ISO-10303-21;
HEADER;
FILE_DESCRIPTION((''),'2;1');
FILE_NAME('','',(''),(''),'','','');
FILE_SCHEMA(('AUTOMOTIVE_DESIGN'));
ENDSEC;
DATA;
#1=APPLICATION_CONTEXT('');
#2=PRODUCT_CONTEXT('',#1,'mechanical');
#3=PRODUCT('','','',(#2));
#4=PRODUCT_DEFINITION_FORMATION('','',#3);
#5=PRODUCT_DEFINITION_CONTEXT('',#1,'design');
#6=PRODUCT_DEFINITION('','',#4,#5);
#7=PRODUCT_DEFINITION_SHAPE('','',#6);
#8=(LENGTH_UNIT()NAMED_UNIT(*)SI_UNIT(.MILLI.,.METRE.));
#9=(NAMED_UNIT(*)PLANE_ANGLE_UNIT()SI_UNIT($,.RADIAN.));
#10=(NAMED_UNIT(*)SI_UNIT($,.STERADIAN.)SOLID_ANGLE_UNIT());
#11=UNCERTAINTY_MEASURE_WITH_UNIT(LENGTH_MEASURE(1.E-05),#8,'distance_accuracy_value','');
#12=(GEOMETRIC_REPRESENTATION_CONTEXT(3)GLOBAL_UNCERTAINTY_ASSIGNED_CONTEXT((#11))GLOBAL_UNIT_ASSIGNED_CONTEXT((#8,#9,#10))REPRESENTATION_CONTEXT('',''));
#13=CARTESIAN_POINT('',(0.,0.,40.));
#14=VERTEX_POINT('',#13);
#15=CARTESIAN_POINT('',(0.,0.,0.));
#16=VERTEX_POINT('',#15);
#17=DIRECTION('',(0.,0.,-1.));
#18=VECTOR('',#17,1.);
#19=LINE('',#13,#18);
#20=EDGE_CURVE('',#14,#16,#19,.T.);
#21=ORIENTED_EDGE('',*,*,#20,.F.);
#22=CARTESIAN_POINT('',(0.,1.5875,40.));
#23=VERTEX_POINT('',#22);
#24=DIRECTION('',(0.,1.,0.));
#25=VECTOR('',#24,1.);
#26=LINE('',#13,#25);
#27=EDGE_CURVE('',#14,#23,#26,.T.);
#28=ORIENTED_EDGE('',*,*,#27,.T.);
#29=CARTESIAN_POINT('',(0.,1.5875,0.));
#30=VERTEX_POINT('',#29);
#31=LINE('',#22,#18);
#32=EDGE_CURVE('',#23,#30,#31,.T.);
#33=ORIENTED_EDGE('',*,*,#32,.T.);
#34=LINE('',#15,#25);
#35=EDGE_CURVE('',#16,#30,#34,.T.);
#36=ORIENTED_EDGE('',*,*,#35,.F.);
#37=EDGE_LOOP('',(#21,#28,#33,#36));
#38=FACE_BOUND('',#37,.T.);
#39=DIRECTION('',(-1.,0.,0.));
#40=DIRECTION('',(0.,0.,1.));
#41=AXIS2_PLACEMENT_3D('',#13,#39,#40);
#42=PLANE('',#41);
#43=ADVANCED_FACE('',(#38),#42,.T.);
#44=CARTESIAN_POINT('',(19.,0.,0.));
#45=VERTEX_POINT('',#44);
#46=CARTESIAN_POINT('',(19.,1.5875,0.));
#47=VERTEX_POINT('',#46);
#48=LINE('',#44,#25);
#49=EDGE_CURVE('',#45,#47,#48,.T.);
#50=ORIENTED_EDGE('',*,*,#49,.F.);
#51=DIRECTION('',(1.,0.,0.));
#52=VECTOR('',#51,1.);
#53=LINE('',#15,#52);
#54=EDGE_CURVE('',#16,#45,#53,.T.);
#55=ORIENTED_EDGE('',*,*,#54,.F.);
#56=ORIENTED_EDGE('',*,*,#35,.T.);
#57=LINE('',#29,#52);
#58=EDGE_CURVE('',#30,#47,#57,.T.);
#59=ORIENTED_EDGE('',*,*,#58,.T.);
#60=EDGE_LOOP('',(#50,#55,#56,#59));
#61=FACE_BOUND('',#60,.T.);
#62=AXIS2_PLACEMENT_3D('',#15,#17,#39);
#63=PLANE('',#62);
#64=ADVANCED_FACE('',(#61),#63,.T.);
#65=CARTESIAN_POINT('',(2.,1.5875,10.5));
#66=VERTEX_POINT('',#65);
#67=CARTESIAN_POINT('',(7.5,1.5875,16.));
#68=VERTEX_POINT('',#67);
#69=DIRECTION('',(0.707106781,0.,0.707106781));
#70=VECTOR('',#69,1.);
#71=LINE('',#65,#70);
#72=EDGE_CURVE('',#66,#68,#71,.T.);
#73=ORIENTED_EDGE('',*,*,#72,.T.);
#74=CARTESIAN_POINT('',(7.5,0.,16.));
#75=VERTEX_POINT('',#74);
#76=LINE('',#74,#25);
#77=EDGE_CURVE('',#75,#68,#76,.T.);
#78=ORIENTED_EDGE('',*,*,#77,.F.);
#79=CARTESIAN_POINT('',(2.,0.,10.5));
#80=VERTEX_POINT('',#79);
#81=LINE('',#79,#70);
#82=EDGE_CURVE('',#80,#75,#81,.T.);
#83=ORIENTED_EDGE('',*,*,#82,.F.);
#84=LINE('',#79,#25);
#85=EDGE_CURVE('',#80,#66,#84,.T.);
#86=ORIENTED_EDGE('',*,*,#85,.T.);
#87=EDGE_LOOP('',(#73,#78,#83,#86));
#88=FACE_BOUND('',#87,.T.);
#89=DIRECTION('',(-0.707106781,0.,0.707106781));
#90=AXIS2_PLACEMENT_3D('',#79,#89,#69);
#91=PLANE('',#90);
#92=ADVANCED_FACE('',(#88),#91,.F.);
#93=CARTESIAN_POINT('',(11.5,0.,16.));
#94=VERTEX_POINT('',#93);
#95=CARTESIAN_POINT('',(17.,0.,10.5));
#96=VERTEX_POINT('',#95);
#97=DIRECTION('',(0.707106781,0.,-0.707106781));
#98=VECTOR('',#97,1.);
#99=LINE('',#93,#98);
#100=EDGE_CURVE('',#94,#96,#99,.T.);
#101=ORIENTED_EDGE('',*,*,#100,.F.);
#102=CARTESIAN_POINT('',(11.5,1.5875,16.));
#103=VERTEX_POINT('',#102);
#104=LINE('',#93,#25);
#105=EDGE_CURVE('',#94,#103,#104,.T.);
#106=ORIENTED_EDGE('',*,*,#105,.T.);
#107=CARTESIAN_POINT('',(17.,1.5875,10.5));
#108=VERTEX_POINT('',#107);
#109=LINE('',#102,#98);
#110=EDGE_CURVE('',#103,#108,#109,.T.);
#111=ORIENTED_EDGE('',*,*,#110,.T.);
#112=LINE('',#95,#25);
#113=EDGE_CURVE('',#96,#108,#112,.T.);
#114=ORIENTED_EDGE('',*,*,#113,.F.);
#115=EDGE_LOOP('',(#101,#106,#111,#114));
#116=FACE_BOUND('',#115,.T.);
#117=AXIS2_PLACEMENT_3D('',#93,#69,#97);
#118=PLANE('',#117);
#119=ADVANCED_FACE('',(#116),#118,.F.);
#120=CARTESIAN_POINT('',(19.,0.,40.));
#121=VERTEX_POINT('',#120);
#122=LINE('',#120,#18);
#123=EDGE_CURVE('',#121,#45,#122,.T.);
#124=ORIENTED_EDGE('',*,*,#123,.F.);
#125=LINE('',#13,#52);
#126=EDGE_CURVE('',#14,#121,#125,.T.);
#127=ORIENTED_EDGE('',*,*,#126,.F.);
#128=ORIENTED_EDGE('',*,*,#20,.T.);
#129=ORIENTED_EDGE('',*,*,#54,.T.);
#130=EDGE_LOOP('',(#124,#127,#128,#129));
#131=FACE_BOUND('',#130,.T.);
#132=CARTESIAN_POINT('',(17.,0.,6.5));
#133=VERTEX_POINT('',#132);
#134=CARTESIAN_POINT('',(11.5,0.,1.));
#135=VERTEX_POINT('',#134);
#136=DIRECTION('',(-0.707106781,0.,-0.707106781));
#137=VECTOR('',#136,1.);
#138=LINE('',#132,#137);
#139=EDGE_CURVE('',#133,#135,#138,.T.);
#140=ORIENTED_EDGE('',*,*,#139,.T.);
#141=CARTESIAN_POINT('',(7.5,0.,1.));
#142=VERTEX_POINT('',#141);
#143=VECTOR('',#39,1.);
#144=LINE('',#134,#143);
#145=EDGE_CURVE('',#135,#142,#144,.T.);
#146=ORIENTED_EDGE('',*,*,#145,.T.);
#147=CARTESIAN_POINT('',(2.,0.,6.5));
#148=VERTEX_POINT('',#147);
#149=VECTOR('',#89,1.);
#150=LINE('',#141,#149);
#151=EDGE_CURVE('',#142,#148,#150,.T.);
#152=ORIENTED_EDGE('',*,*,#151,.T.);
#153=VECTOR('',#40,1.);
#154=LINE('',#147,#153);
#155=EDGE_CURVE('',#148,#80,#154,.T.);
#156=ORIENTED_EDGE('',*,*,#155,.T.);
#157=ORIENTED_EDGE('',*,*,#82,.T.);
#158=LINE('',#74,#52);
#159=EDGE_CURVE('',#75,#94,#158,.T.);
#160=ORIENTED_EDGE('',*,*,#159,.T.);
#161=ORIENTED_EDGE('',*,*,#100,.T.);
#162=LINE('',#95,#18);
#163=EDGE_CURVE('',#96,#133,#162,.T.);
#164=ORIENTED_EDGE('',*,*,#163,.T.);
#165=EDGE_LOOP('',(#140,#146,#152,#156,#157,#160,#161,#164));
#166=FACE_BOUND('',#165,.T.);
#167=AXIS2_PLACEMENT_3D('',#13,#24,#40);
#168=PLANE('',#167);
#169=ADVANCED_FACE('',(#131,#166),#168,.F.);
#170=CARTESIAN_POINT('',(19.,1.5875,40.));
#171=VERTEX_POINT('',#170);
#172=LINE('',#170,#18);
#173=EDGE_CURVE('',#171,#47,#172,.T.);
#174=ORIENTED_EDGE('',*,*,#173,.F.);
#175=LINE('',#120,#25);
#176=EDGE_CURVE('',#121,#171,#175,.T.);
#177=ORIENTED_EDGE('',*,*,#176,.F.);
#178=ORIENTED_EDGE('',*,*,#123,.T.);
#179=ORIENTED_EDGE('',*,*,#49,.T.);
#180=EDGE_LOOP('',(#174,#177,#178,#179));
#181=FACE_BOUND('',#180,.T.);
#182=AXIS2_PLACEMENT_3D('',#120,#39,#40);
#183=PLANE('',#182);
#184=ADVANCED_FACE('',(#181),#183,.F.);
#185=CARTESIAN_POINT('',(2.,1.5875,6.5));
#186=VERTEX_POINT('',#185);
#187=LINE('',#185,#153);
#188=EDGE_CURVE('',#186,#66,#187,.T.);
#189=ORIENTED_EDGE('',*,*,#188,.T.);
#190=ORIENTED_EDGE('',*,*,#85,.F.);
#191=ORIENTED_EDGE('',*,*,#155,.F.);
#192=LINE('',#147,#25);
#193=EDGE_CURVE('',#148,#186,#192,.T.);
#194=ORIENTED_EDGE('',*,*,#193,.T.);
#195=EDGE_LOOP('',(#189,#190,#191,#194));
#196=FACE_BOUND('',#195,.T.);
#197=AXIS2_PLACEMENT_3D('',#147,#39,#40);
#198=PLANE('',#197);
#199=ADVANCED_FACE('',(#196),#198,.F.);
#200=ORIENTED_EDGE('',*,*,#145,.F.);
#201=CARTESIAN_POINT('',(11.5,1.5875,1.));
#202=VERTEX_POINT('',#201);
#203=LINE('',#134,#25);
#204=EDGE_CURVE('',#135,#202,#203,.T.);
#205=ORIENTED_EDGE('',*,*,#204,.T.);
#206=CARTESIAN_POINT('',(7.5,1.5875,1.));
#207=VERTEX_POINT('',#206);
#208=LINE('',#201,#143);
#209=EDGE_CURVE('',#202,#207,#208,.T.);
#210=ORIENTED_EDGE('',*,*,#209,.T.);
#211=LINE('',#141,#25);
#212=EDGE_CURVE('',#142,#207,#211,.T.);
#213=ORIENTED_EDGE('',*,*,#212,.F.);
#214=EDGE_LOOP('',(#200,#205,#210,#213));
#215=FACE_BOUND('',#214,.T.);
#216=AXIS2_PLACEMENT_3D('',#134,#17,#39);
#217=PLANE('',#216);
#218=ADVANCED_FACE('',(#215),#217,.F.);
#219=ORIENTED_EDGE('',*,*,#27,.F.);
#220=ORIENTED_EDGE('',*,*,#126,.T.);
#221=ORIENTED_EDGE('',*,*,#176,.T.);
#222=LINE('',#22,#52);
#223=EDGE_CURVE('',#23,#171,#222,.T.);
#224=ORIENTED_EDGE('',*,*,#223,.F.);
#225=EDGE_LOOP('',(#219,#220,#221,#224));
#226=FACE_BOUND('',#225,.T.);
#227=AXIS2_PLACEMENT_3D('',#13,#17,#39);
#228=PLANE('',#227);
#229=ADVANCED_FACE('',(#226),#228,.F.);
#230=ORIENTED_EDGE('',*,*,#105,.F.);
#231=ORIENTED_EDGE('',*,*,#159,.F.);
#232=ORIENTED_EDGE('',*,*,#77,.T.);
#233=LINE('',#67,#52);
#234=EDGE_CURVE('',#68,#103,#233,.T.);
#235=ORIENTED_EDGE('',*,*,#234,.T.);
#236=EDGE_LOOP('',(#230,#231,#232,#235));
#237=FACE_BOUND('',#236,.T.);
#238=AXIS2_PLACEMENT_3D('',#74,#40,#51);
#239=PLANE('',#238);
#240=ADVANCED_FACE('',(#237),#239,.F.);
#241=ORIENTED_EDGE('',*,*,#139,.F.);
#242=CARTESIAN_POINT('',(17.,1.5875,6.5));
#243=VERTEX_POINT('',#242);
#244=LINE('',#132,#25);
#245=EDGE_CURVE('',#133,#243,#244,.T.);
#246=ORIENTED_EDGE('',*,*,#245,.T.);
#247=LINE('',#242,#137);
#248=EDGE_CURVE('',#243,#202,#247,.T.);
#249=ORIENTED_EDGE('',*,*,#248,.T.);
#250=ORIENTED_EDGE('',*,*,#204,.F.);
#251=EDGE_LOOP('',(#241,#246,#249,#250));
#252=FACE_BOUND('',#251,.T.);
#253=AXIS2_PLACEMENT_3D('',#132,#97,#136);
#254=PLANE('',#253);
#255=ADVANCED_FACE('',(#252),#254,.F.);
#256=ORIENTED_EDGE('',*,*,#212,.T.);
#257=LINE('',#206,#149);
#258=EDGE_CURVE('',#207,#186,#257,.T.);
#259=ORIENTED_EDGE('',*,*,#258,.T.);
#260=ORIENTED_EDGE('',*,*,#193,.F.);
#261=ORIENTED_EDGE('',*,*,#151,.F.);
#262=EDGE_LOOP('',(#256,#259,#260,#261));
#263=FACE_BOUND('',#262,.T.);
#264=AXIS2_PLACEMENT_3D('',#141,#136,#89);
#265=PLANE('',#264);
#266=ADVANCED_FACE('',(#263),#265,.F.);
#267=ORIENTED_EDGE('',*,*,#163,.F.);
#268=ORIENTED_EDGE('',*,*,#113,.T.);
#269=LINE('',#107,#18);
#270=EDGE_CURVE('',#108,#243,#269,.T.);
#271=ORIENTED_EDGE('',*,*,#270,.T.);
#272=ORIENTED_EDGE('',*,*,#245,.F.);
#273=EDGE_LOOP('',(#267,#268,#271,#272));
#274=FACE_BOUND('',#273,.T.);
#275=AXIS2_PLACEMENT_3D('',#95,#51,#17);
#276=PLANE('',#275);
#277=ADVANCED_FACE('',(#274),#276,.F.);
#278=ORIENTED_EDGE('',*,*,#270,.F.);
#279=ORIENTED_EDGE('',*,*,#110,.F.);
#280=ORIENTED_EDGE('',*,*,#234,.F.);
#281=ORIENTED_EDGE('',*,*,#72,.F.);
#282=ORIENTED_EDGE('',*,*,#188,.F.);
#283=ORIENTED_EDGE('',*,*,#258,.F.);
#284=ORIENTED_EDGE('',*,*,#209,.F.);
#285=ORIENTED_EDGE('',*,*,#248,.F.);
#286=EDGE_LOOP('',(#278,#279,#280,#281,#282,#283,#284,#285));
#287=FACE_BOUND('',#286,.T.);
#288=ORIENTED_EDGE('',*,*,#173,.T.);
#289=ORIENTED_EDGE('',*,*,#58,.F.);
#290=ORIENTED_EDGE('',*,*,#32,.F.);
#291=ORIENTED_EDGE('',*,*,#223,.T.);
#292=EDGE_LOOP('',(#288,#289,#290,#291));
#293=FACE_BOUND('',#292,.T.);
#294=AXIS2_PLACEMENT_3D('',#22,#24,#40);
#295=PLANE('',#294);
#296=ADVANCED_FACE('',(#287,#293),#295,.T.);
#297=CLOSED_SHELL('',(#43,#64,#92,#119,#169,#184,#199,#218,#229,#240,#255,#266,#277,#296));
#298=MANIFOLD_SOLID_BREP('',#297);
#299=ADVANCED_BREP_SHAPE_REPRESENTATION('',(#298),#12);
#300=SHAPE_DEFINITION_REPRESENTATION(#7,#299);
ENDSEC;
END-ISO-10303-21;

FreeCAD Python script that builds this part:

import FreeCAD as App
import Part
import Sketcher
Q = App.Units.Quantity

doc = App.newDocument("Part")
body = doc.addObject("PartDesign::Body", "Body")

sketch1 = doc.addObject("Sketcher::SketchObject", "Sketch")
body.addObject(sketch1)
sketch1.AttachmentSupport = (doc.XY_Plane, [""])
sketch1.MapMode = "FlatFace"
sketch1.addGeometry(Part.LineSegment(App.Vector(0, 1.6, 0), App.Vector(0, 0, 0)), False)
sketch1.addGeometry(Part.LineSegment(App.Vector(0, 0, 0), App.Vector(19, 0, 0)), False)
sketch1.addGeometry(Part.LineSegment(App.Vector(19, 0, 0), App.Vector(19, 1.6, 0)), False)
sketch1.addGeometry(Part.LineSegment(App.Vector(19, 1.6, 0), App.Vector(0, 1.6, 0)), False)
sketch1.addConstraint(Sketcher.Constraint("Coincident", 0, 2, 1, 1))
sketch1.addConstraint(Sketcher.Constraint("Coincident", 1, 2, 2, 1))
sketch1.addConstraint(Sketcher.Constraint("Coincident", 2, 2, 3, 1))
sketch1.addConstraint(Sketcher.Constraint("Coincident", 3, 2, 0, 1))
sketch1.addConstraint(Sketcher.Constraint("Vertical", 0))
sketch1.addConstraint(Sketcher.Constraint("Horizontal", 1))
sketch1.addConstraint(Sketcher.Constraint("Vertical", 2))
sketch1.addConstraint(Sketcher.Constraint("Horizontal", 3))
sketch1.addConstraint(Sketcher.Constraint("Coincident", 0, 2, -1, 1))
sketch1.addConstraint(Sketcher.Constraint("DistanceX", 1, 1, 1, 2, Q("19 mm")))
sketch1.addConstraint(Sketcher.Constraint("DistanceY", 0, 2, 0, 1, Q("1.5875 mm")))
pad1 = doc.addObject("PartDesign::Pad", "Pad")
body.addObject(pad1)
pad1.Profile = sketch1
pad1.Length = 40

sketch2 = doc.addObject("Sketcher::SketchObject", "Sketch001")
body.addObject(sketch2)
sketch2.AttachmentSupport = (doc.XZ_Plane, [""])
sketch2.MapMode = "FlatFace"
sketch2.AttachmentOffset = App.Placement(App.Vector(0, 0, -1.5875), App.Rotation())
sketch2.addGeometry(Part.LineSegment(App.Vector(2, 10.5, 0), App.Vector(7.5, 16, 0)), False)
sketch2.addGeometry(Part.LineSegment(App.Vector(7.5, 16, 0), App.Vector(11.5, 16, 0)), False)
sketch2.addGeometry(Part.LineSegment(App.Vector(11.5, 16, 0), App.Vector(17, 10.5, 0)), False)
sketch2.addGeometry(Part.LineSegment(App.Vector(17, 10.5, 0), App.Vector(17, 6.5, 0)), False)
sketch2.addGeometry(Part.LineSegment(App.Vector(17, 6.5, 0), App.Vector(11.5, 1, 0)), False)
sketch2.addGeometry(Part.LineSegment(App.Vector(11.5, 1, 0), App.Vector(7.5, 1, 0)), False)
sketch2.addGeometry(Part.LineSegment(App.Vector(7.5, 1, 0), App.Vector(2, 6.5, 0)), False)
sketch2.addGeometry(Part.LineSegment(App.Vector(2, 6.5, 0), App.Vector(2, 10.5, 0)), False)
sketch2.addConstraint(Sketcher.Constraint("Coincident", 0, 2, 1, 1))
sketch2.addConstraint(Sketcher.Constraint("Coincident", 1, 2, 2, 1))
sketch2.addConstraint(Sketcher.Constraint("Coincident", 2, 2, 3, 1))
sketch2.addConstraint(Sketcher.Constraint("Coincident", 3, 2, 4, 1))
sketch2.addConstraint(Sketcher.Constraint("Coincident", 4, 2, 5, 1))
sketch2.addConstraint(Sketcher.Constraint("Coincident", 5, 2, 6, 1))
sketch2.addConstraint(Sketcher.Constraint("Coincident", 6, 2, 7, 1))
sketch2.addConstraint(Sketcher.Constraint("Coincident", 7, 2, 0, 1))
sketch2.addConstraint(Sketcher.Constraint("Horizontal", 1))
sketch2.addConstraint(Sketcher.Constraint("Vertical", 3))
sketch2.addConstraint(Sketcher.Constraint("Horizontal", 5))
sketch2.addConstraint(Sketcher.Constraint("Vertical", 7))
sketch2.addConstraint(Sketcher.Constraint("Perpendicular", 0, 2))
sketch2.addConstraint(Sketcher.Constraint("Perpendicular", 2, 4))
sketch2.addConstraint(Sketcher.Constraint("Perpendicular", 4, 6))
sketch2.addConstraint(Sketcher.Constraint("Horizontal", 3, 2, 6, 2))
sketch2.addConstraint(Sketcher.Constraint("Horizontal", 2, 2, 7, 2))
sketch2.addConstraint(Sketcher.Constraint("Vertical", 1, 2, 4, 2))
sketch2.addConstraint(Sketcher.Constraint("Vertical", 0, 2, 5, 2))
sketch2.addConstraint(Sketcher.Constraint("Equal", 5, 3))
sketch2.addConstraint(Sketcher.Constraint("DistanceX", 1, 1, 1, 2, Q("4 mm")))
sketch2.addConstraint(Sketcher.Constraint("DistanceY", -1, 1, 0, 2, Q("16 mm")))
sketch2.addConstraint(Sketcher.Constraint("DistanceX", -1, 1, 2, 2, Q("17 mm")))
sketch2.addConstraint(Sketcher.Constraint("DistanceY", -1, 1, 4, 2, Q("1 mm")))
pocket1 = doc.addObject("PartDesign::Pocket", "Pocket")
body.addObject(pocket1)
pocket1.Profile = sketch2
pocket1.Type = "ThroughAll"
pocket1.Reversed = True

doc.recompute()
